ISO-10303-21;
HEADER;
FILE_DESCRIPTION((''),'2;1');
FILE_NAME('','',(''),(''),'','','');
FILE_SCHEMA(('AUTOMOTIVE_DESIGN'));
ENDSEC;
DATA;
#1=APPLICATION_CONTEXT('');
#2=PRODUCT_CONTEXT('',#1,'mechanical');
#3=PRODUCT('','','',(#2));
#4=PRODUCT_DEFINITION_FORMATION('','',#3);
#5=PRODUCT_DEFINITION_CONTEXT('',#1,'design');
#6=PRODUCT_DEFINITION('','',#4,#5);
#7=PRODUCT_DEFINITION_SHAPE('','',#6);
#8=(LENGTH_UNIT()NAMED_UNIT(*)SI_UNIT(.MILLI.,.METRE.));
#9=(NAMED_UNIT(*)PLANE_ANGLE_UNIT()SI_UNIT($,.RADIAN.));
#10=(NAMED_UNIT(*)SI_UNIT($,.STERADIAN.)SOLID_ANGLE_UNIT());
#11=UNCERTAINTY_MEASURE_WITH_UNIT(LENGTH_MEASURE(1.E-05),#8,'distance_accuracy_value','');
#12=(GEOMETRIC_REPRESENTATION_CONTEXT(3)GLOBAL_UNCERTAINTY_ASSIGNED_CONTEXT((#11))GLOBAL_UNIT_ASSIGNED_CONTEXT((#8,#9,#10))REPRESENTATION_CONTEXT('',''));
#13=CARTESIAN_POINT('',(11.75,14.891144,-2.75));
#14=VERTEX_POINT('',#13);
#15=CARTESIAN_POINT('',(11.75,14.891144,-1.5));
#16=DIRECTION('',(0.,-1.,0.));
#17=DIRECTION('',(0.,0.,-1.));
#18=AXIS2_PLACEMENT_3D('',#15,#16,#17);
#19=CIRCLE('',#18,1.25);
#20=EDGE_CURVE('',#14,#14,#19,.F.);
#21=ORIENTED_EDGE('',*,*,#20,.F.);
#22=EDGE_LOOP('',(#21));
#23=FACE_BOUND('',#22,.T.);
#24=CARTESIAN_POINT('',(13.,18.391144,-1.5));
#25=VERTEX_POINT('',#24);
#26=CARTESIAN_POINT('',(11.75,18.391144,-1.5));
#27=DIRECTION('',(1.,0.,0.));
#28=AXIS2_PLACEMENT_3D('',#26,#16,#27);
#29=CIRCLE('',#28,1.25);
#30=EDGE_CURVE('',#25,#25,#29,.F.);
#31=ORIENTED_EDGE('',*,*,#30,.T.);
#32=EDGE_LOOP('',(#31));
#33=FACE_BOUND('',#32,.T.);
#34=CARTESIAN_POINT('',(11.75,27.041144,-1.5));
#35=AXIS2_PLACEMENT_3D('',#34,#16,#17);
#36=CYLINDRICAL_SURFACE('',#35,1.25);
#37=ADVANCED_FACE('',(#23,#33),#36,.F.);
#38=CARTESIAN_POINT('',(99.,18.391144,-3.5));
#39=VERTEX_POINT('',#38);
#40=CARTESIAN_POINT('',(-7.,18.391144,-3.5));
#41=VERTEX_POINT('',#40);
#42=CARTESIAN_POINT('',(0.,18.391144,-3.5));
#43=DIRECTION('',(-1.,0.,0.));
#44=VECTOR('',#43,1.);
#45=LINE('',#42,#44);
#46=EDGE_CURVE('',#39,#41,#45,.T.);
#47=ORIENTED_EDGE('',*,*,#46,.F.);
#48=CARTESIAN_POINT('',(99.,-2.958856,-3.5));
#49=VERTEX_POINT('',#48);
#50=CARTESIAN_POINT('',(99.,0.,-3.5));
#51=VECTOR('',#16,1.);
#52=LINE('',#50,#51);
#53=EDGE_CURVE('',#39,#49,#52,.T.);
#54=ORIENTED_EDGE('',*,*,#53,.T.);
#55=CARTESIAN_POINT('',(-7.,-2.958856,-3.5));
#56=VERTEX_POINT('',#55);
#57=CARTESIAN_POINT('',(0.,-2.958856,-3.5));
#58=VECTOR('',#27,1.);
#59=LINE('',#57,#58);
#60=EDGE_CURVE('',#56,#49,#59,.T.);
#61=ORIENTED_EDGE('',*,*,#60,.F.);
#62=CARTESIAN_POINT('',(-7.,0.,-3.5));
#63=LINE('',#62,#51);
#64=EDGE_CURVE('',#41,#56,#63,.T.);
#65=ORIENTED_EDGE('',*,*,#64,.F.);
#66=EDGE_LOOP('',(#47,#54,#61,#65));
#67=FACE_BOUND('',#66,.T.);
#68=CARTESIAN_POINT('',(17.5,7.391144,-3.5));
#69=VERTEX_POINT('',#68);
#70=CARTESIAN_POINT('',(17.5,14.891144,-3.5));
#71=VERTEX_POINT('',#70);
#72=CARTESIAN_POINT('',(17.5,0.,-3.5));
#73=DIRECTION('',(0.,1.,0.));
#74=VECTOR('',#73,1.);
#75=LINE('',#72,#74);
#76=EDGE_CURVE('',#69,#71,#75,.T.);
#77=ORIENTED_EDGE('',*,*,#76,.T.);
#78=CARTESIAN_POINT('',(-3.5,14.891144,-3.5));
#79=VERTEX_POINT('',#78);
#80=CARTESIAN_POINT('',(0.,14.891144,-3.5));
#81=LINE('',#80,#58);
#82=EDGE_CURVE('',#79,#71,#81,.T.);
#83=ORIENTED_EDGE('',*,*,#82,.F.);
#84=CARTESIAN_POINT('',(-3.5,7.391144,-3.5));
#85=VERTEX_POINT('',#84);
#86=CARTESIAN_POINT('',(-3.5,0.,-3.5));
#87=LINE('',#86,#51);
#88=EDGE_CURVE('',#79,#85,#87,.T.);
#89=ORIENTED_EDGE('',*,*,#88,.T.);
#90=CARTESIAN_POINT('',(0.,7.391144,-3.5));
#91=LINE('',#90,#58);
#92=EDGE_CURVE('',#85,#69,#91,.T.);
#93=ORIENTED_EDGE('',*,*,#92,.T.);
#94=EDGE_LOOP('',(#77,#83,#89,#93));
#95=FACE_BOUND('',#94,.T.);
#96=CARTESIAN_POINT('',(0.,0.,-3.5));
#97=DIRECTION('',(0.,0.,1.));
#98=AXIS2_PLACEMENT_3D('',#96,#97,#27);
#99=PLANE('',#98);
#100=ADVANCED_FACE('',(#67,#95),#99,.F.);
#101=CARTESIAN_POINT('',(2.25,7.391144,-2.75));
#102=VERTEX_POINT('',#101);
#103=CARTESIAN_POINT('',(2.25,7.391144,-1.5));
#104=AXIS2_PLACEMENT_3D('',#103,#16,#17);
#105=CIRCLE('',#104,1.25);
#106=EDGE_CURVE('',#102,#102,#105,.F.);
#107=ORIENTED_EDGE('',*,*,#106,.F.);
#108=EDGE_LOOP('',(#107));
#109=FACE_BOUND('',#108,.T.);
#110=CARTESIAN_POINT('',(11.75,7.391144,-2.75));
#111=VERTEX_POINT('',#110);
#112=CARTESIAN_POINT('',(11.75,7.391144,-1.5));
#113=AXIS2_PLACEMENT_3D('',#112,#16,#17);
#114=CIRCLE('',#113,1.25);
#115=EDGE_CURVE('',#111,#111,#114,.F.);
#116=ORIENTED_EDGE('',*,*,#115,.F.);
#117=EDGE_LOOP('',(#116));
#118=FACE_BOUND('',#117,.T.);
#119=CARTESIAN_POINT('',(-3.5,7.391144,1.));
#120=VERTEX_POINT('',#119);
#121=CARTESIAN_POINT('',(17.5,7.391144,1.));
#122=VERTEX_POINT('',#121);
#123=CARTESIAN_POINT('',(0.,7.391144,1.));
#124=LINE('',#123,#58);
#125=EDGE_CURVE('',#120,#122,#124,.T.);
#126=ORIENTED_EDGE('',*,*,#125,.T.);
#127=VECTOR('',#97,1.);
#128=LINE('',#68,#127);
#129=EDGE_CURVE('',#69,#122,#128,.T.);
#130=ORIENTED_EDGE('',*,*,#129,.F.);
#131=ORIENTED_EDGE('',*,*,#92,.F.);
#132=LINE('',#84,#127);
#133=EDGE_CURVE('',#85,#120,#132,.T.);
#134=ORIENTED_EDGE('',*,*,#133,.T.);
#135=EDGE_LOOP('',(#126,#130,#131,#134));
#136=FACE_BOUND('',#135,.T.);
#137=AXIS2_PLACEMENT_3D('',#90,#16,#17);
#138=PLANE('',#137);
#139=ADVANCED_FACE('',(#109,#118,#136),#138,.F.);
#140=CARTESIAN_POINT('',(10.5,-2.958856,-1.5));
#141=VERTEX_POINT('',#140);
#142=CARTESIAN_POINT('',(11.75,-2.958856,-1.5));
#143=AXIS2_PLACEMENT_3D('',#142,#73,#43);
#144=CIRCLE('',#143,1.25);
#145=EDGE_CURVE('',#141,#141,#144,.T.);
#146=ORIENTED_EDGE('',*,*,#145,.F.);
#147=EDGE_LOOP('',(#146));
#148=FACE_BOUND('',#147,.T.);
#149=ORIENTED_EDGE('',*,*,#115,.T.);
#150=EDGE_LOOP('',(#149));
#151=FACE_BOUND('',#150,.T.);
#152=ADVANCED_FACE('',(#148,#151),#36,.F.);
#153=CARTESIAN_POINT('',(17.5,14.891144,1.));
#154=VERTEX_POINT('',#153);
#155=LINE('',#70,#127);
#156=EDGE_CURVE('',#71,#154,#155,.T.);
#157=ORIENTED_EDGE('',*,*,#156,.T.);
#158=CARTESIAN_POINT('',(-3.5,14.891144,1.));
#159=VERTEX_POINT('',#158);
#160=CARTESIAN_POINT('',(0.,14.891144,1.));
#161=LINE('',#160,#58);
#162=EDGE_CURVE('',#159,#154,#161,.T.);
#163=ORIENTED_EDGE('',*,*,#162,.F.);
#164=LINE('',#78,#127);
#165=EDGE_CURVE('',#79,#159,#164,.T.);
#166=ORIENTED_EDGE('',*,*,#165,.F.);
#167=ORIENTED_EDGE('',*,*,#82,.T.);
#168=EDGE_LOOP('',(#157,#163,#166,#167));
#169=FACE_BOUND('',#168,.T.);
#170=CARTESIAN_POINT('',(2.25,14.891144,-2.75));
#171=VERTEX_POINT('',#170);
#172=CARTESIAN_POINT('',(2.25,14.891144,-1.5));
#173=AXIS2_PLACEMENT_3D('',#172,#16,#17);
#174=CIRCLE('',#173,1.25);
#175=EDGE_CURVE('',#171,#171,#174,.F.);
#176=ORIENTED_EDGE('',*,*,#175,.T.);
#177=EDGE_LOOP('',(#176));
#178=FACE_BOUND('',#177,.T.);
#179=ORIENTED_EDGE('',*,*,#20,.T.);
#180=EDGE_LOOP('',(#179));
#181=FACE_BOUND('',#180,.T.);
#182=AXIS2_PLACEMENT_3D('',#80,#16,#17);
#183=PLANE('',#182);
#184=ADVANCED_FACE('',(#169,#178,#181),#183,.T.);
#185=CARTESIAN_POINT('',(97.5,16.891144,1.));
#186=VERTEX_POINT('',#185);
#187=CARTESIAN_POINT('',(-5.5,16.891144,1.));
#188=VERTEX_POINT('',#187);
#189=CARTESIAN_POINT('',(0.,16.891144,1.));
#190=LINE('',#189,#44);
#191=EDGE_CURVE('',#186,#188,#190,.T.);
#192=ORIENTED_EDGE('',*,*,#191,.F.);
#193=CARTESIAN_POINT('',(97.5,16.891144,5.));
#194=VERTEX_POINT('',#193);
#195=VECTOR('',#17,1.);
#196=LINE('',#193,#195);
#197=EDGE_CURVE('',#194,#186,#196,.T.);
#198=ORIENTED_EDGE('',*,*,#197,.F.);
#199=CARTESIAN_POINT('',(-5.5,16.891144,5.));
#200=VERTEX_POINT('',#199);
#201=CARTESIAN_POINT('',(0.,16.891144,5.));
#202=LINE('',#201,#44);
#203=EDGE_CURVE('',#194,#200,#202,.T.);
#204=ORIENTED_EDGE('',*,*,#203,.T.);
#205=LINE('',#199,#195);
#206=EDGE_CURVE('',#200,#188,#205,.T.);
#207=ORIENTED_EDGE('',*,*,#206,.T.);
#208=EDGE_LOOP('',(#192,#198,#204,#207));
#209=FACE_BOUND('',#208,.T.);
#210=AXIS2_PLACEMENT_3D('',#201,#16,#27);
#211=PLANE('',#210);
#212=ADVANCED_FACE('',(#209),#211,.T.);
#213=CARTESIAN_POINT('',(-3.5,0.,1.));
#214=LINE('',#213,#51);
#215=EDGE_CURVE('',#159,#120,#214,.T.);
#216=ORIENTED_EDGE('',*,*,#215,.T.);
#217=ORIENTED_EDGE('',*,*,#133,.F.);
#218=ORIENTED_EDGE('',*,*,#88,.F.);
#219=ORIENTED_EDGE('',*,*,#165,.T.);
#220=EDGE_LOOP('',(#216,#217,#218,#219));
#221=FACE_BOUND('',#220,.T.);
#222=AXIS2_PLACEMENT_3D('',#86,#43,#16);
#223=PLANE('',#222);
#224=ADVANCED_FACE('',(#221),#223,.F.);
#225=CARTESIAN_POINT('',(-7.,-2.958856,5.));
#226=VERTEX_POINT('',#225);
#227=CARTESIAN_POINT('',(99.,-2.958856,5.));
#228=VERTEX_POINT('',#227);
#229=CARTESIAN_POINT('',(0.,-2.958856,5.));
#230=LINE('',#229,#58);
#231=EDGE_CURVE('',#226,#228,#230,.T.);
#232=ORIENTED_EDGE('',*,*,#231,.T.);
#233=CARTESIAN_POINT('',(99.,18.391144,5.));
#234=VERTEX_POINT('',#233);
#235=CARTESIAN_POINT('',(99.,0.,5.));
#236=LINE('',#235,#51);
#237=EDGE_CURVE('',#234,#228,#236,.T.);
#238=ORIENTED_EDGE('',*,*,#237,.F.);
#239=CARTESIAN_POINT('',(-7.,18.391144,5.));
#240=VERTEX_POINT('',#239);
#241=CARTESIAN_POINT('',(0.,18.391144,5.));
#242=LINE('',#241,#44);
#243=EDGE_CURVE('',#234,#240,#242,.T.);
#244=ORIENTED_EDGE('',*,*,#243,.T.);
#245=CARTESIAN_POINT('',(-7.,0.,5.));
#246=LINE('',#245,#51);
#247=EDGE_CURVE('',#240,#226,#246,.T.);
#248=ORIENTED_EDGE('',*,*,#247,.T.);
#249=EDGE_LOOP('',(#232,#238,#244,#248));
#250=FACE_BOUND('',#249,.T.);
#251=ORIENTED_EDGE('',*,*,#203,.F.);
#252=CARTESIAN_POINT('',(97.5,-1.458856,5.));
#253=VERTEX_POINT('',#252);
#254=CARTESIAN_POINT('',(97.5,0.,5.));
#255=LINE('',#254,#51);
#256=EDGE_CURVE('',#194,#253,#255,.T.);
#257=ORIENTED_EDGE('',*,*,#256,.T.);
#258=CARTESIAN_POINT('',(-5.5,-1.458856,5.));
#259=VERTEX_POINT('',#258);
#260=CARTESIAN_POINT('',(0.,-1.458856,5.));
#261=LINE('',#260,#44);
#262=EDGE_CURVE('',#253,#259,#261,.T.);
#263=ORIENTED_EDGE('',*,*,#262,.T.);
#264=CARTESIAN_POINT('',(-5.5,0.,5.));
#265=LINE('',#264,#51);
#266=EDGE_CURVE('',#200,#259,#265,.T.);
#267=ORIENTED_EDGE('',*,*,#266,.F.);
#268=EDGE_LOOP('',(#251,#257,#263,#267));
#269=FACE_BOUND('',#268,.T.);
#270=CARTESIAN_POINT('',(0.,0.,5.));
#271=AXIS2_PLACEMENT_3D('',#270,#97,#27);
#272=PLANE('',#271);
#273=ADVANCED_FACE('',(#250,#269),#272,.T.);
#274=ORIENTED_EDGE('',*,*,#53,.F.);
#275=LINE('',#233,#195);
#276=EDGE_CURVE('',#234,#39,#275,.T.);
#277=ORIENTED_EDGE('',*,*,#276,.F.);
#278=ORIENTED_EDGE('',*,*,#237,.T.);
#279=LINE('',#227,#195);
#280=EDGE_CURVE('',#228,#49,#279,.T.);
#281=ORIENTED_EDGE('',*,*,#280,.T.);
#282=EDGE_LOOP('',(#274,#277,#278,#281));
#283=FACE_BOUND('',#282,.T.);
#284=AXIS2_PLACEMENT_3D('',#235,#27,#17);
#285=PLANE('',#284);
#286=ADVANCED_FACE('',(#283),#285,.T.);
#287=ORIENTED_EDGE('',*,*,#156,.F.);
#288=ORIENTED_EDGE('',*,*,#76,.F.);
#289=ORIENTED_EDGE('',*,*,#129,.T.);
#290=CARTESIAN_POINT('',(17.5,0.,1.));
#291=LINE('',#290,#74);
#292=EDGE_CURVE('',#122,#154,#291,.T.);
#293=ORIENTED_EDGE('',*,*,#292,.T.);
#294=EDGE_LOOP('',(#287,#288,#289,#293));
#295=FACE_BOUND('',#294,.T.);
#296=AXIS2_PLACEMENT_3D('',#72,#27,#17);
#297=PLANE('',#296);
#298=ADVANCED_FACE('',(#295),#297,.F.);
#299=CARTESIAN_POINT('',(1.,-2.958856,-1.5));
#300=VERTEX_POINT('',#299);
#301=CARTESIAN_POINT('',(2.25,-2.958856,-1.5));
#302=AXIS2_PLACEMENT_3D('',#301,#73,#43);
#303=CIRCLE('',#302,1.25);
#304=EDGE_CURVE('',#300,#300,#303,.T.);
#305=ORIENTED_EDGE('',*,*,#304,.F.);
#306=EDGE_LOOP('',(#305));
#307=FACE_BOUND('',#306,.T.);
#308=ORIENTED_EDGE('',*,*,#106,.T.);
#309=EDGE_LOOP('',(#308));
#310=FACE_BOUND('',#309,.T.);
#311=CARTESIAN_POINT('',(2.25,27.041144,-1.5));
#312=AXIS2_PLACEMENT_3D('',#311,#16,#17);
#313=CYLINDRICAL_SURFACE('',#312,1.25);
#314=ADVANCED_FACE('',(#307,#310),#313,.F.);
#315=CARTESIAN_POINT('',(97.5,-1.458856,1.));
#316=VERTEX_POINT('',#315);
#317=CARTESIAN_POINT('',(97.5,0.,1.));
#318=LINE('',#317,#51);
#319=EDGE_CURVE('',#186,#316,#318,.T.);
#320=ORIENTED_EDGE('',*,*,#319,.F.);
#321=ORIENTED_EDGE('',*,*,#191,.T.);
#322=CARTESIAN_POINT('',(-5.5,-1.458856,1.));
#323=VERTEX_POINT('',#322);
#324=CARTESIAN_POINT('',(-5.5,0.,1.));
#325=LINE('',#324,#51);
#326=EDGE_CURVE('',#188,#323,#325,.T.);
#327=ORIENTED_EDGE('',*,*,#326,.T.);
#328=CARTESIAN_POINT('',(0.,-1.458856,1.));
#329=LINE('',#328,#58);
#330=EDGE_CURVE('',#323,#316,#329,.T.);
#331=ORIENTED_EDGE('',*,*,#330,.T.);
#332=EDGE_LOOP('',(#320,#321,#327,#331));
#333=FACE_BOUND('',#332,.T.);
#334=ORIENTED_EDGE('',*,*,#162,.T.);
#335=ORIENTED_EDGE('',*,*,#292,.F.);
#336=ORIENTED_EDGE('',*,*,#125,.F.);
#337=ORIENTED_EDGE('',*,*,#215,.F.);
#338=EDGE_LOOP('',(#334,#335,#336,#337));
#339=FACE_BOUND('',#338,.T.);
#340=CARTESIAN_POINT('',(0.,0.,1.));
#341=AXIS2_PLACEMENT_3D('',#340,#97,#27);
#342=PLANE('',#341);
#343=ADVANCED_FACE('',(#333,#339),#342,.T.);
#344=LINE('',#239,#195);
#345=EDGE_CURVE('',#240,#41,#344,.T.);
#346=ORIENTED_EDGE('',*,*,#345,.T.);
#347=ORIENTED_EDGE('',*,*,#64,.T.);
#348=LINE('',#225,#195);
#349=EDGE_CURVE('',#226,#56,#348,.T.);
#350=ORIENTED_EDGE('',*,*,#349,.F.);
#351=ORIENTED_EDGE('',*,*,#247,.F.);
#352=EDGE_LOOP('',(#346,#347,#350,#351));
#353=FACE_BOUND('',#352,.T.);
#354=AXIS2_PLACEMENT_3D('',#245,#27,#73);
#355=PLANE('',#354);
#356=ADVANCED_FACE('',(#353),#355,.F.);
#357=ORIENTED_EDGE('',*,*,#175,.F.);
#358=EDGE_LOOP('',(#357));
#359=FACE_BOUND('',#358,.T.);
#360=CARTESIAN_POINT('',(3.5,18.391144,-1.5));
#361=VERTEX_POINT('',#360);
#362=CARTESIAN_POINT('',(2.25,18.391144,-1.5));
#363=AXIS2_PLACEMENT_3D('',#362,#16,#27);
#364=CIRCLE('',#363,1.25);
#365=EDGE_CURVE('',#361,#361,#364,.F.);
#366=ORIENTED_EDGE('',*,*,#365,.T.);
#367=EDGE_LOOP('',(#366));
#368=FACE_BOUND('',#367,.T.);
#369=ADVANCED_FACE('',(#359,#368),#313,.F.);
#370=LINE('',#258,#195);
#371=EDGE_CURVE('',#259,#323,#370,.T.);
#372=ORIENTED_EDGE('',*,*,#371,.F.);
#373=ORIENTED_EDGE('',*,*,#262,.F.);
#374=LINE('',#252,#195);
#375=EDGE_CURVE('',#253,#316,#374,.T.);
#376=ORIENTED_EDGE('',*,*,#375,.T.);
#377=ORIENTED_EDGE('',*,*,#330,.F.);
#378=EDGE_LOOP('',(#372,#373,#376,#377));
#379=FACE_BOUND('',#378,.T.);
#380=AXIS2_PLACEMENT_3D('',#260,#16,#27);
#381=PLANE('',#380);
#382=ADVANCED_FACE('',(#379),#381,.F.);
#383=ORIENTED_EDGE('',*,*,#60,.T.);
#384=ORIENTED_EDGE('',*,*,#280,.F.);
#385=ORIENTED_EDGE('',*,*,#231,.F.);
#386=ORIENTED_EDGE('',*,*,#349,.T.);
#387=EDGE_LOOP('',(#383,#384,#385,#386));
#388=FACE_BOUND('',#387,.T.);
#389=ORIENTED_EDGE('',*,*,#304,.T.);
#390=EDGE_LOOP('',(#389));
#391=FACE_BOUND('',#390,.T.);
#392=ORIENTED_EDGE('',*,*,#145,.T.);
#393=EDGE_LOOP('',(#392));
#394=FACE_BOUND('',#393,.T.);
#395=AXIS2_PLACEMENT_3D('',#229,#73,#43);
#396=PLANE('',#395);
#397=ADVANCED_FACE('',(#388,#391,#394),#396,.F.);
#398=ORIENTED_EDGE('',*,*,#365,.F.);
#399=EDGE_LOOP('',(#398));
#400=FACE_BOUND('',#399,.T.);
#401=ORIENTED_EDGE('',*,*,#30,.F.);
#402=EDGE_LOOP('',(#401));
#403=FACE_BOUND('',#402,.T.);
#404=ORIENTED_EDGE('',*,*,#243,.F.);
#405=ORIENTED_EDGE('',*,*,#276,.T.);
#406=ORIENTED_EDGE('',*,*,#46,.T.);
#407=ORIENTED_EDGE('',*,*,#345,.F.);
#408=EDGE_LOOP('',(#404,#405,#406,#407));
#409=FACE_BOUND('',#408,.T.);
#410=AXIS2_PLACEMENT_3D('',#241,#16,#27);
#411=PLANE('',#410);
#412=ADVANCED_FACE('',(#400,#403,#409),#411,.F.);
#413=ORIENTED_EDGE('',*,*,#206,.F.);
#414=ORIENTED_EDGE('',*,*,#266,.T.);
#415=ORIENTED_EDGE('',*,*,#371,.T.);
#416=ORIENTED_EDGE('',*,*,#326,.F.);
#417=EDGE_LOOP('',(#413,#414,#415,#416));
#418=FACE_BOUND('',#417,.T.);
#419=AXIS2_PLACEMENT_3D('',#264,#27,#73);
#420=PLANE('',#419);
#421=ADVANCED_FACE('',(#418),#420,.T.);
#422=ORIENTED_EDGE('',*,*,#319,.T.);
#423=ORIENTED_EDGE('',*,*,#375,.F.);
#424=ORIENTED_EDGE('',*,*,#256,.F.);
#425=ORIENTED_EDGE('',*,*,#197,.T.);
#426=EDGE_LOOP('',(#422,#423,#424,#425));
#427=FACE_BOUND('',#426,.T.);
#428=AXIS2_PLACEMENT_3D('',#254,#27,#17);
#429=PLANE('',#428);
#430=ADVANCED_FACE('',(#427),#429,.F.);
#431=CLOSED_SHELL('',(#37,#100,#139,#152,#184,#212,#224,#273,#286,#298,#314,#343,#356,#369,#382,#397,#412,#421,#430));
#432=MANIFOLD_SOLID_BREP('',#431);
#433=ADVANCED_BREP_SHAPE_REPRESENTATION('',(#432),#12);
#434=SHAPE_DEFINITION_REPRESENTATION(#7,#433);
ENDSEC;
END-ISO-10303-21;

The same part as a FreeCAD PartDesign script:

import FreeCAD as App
import Part
import Sketcher

V = App.Vector
Q = App.Units.Quantity


def add_polygon(sketch, points):
    """Adds a closed chain of lines whose ends are joined by coincident constraints."""
    first, n = sketch.GeometryCount, len(points)
    for a, b in zip(points, points[1:] + points[:1]):
        sketch.addGeometry(Part.LineSegment(App.Vector(*a, 0), App.Vector(*b, 0)), False)
    for i in range(n):
        sketch.addConstraint(Sketcher.Constraint("Coincident", first + i, 2, first + (i + 1) % n, 1))

doc = App.newDocument("Part")
body = doc.addObject("PartDesign::Body", "Body")

# Sketch on XY plane
sketch1 = doc.addObject("Sketcher::SketchObject", "Sketch")
body.addObject(sketch1)
sketch1.AttachmentSupport = (doc.XY_Plane, [""])
sketch1.MapMode = "FlatFace"
add_polygon(sketch1, [(99, -3), (99, 18), (-7, 18), (-7, -3)])  # lines 0-3
add_polygon(sketch1, [(-6, -1), (-6, 17), (98, 17), (98, -1)])  # lines 4-7
sketch1.addConstraint([
    Sketcher.Constraint("Vertical", 0),
    Sketcher.Constraint("Horizontal", 1),
    Sketcher.Constraint("Vertical", 2),
    Sketcher.Constraint("Horizontal", 3),
    Sketcher.Constraint("Vertical", 4),
    Sketcher.Constraint("Horizontal", 5),
    Sketcher.Constraint("Vertical", 6),
    Sketcher.Constraint("Horizontal", 7),
    Sketcher.Constraint("DistanceX", 1, 2, 1, 1, Q("106 mm")),
    Sketcher.Constraint("DistanceX", 5, 1, 5, 2, Q("103 mm")),
    Sketcher.Constraint("DistanceX", -1, 1, 0, 2, Q("99 mm")),
    Sketcher.Constraint("DistanceY", 0, 1, 0, 2, Q("21.35 mm")),
    Sketcher.Constraint("DistanceY", 4, 1, 4, 2, Q("18.35 mm")),
    Sketcher.Constraint("DistanceX", 4, 2, -1, 1, Q("5.5 mm")),
    Sketcher.Constraint("DistanceY", 4, 2, 1, 2, Q("1.5 mm")),
    Sketcher.Constraint("DistanceY", -1, 1, 0, 2, Q("18.391144 mm")),
])
pad1 = doc.addObject("PartDesign::Pad", "Pad")
body.addObject(pad1)
pad1.Profile = sketch1
pad1.Length = 5

# Sketch on XY plane
sketch2 = doc.addObject("Sketcher::SketchObject", "Sketch001")
body.addObject(sketch2)
sketch2.AttachmentSupport = (doc.XY_Plane, [""])
sketch2.MapMode = "FlatFace"
add_polygon(sketch2, [(-7, 18), (-7, -3), (99, -3), (99, 18)])  # lines 0-3
add_polygon(sketch2, [(18, 7), (-4, 7), (-4, 15), (18, 15)])  # lines 4-7
sketch2.addConstraint([
    Sketcher.Constraint("Vertical", 0),
    Sketcher.Constraint("Horizontal", 1),
    Sketcher.Constraint("Vertical", 2),
    Sketcher.Constraint("Horizontal", 3),
    Sketcher.Constraint("Horizontal", 4),
    Sketcher.Constraint("Vertical", 5),
    Sketcher.Constraint("Horizontal", 6),
    Sketcher.Constraint("Vertical", 7),
    Sketcher.Constraint("DistanceX", 1, 1, 1, 2, Q("106 mm")),
    Sketcher.Constraint("DistanceX", 4, 2, 4, 1, Q("21 mm")),
    Sketcher.Constraint("DistanceY", 5, 1, 5, 2, Q("7.5 mm")),
    Sketcher.Constraint("DistanceX", 0, 2, -1, 1, Q("7 mm")),
    Sketcher.Constraint("DistanceY", 4, 2, 3, 2, Q("11 mm")),
    Sketcher.Constraint("DistanceY", 0, 2, 0, 1, Q("21.35 mm")),
    Sketcher.Constraint("DistanceX", 4, 2, -1, 1, Q("3.5 mm")),
    Sketcher.Constraint("DistanceY", 0, 2, -1, 1, Q("2.958856 mm")),
])
pad2 = doc.addObject("PartDesign::Pad", "Pad001")
body.addObject(pad2)
pad2.Profile = sketch2
pad2.Length = 3.5
pad2.Reversed = True

# Sketch on XZ plane
sketch3 = doc.addObject("Sketcher::SketchObject", "Sketch002")
body.addObject(sketch3)
sketch3.AttachmentSupport = (doc.XZ_Plane, [""])
sketch3.MapMode = "FlatFace"
sketch3.AttachmentOffset = App.Placement(V(0, 0, 2.958856), App.Rotation())
sketch3.addGeometry([
    Part.Circle(V(2.2, -1.5, 0), V(0, 0, 1), 1.2),
    Part.Circle(V(11.8, -1.5, 0), V(0, 0, 1), 1.2),
], False)
sketch3.addConstraint([
    Sketcher.Constraint("Equal", 0, 1),
    Sketcher.Constraint("Horizontal", 0, 3, 1, 3),
    Sketcher.Constraint("Diameter", 0, Q("2.5 mm")),
    Sketcher.Constraint("DistanceY", 0, 3, -1, 1, Q("1.5 mm")),
    Sketcher.Constraint("DistanceX", 0, 3, 1, 3, Q("9.5 mm")),
    Sketcher.Constraint("DistanceX", -1, 1, 0, 3, Q("2.25 mm")),
])
pocket1 = doc.addObject("PartDesign::Pocket", "Pocket")
body.addObject(pocket1)
pocket1.Profile = sketch3
pocket1.Length = 30

# Sketch on XY plane
sketch4 = doc.addObject("Sketcher::SketchObject", "Sketch003")
body.addObject(sketch4)
sketch4.AttachmentSupport = (doc.XY_Plane, [""])
sketch4.MapMode = "FlatFace"
add_polygon(sketch4, [(-6, 17), (-6, -1), (98, -1), (98, 17)])  # lines 0-3
add_polygon(sketch4, [(18, 15), (18, 7), (-4, 7), (-4, 15)])  # lines 4-7
sketch4.addConstraint([
    Sketcher.Constraint("Vertical", 0),
    Sketcher.Constraint("Horizontal", 1),
    Sketcher.Constraint("Vertical", 2),
    Sketcher.Constraint("Horizontal", 3),
    Sketcher.Constraint("Vertical", 4),
    Sketcher.Constraint("Horizontal", 5),
    Sketcher.Constraint("Vertical", 6),
    Sketcher.Constraint("Horizontal", 7),
    Sketcher.Constraint("DistanceX", 1, 1, 1, 2, Q("103 mm")),
    Sketcher.Constraint("DistanceX", 5, 2, 5, 1, Q("21 mm")),
    Sketcher.Constraint("DistanceY", 4, 2, 4, 1, Q("7.5 mm")),
    Sketcher.Constraint("DistanceX", 0, 2, 4, 2, Q("23 mm")),
    Sketcher.Constraint("DistanceY", 6, 2, 3, 2, Q("2 mm")),
    Sketcher.Constraint("DistanceY", 0, 2, 0, 1, Q("18.35 mm")),
    Sketcher.Constraint("DistanceX", 0, 2, -1, 1, Q("5.5 mm")),
    Sketcher.Constraint("DistanceY", 0, 2, -1, 1, Q("1.458856 mm")),
])
pad3 = doc.addObject("PartDesign::Pad", "Pad002")
body.addObject(pad3)
pad3.Profile = sketch4
pad3.Length = 1

doc.recompute()
